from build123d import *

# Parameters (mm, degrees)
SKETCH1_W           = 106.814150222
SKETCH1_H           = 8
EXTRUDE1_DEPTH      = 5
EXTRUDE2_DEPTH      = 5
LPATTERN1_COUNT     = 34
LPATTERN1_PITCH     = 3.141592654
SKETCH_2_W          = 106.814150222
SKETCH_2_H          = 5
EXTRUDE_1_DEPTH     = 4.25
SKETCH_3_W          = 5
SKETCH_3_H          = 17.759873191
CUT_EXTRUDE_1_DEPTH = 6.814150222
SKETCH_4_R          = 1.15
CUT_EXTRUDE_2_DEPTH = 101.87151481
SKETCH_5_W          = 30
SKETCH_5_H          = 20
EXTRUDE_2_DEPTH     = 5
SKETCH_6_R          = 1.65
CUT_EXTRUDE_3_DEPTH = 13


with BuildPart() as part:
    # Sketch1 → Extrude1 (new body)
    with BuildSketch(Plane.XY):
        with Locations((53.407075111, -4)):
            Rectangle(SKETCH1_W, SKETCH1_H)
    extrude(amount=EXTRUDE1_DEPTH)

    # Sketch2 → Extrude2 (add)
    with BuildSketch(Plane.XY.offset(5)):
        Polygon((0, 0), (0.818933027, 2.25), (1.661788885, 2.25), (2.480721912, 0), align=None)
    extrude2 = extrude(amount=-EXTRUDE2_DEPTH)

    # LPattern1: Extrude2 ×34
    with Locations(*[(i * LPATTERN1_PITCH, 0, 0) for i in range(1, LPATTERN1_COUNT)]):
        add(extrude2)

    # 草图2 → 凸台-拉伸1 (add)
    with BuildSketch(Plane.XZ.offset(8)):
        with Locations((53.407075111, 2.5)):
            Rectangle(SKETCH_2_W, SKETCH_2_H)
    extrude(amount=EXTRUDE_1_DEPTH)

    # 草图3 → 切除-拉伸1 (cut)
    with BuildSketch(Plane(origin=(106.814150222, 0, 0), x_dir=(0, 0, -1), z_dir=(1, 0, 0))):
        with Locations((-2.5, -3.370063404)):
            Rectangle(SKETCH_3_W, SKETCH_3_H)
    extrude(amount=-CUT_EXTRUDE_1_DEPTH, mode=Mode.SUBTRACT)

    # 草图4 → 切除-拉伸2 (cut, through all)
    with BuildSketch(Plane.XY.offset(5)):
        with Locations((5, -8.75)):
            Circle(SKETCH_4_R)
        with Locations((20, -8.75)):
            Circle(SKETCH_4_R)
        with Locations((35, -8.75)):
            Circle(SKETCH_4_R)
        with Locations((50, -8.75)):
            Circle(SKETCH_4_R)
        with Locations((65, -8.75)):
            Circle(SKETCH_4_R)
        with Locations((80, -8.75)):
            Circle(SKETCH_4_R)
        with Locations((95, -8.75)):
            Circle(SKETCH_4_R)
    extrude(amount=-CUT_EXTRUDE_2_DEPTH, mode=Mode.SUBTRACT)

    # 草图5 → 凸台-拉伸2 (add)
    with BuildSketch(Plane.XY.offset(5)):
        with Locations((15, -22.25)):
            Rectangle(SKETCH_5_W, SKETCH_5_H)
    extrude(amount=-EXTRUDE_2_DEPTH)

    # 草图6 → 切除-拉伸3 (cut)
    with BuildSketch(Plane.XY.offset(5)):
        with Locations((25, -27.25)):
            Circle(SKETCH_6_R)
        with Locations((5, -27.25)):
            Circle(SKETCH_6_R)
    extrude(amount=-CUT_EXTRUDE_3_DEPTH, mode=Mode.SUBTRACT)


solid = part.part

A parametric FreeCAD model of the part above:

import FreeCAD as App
import Part
import Sketcher
Q = App.Units.Quantity

doc = App.newDocument("Part")
body = doc.addObject("PartDesign::Body", "Body")

# Sketch on XY plane
sketch1 = doc.addObject("Sketcher::SketchObject", "Sketch")
body.addObject(sketch1)
sketch1.AttachmentSupport = (doc.XY_Plane, [""])
sketch1.MapMode = "FlatFace"
sketch1.addGeometry(Part.LineSegment(App.Vector(0, 0, 0), App.Vector(0, -8, 0)), False)
sketch1.addGeometry(Part.LineSegment(App.Vector(0, -8, 0), App.Vector(106.81415, -8, 0)), False)
sketch1.addGeometry(Part.LineSegment(App.Vector(106.81415, -8, 0), App.Vector(106.81415, 0, 0)), False)
sketch1.addGeometry(Part.LineSegment(App.Vector(106.81415, 0, 0), App.Vector(0, 0, 0)), False)
sketch1.addConstraint(Sketcher.Constraint("Coincident", 0, 2, 1, 1))
sketch1.addConstraint(Sketcher.Constraint("Coincident", 1, 2, 2, 1))
sketch1.addConstraint(Sketcher.Constraint("Coincident", 2, 2, 3, 1))
sketch1.addConstraint(Sketcher.Constraint("Coincident", 3, 2, 0, 1))
sketch1.addConstraint(Sketcher.Constraint("Vertical", 0))
sketch1.addConstraint(Sketcher.Constraint("Horizontal", 1))
sketch1.addConstraint(Sketcher.Constraint("Vertical", 2))
sketch1.addConstraint(Sketcher.Constraint("Horizontal", 3))
sketch1.addConstraint(Sketcher.Constraint("Coincident", 3, 2, -1, 1))
sketch1.addConstraint(Sketcher.Constraint("DistanceY", 0, 2, 0, 1, 8.0))
sketch1.addConstraint(Sketcher.Constraint("DistanceX", 1, 1, 1, 2, 106.81415))
pad1 = doc.addObject("PartDesign::Pad", "Pad")
body.addObject(pad1)
pad1.Profile = sketch1
pad1.Length = 5

# Sketch on XY plane
sketch2 = doc.addObject("Sketcher::SketchObject", "Sketch001")
body.addObject(sketch2)
sketch2.AttachmentSupport = (doc.XY_Plane, [""])
sketch2.MapMode = "FlatFace"
sketch2.AttachmentOffset = App.Placement(App.Vector(0, 0, 5), App.Rotation())
sketch2.addGeometry(Part.LineSegment(App.Vector(0.818933, 2.25, 0), App.Vector(0, 0, 0)), False)
sketch2.addGeometry(Part.LineSegment(App.Vector(0, 0, 0), App.Vector(2.480722, 0, 0)), False)
sketch2.addGeometry(Part.LineSegment(App.Vector(2.480722, 0, 0), App.Vector(1.661789, 2.25, 0)), False)
sketch2.addGeometry(Part.LineSegment(App.Vector(1.661789, 2.25, 0), App.Vector(0.818933, 2.25, 0)), False)
sketch2.addConstraint(Sketcher.Constraint("Coincident", 0, 2, 1, 1))
sketch2.addConstraint(Sketcher.Constraint("Coincident", 1, 2, 2, 1))
sketch2.addConstraint(Sketcher.Constraint("Coincident", 2, 2, 3, 1))
sketch2.addConstraint(Sketcher.Constraint("Coincident", 3, 2, 0, 1))
sketch2.addConstraint(Sketcher.Constraint("Horizontal", 1))
sketch2.addConstraint(Sketcher.Constraint("Horizontal", 3))
sketch2.addConstraint(Sketcher.Constraint("Coincident", 0, 2, -1, 1))
sketch2.addConstraint(Sketcher.Constraint("Equal", 0, 2))
sketch2.addConstraint(Sketcher.Constraint("Angle", 0, Q("-110 deg")))
sketch2.addConstraint(Sketcher.Constraint("DistanceY", -1, 1, 2, 2, 2.25))
sketch2.addConstraint(Sketcher.Constraint("DistanceX", 1, 1, 1, 2, 2.480722))
pad2 = doc.addObject("PartDesign::Pad", "Pad001")
body.addObject(pad2)
pad2.Profile = sketch2
pad2.Length = 5
pad2.Reversed = True
doc.recompute()

linearpattern = doc.addObject("PartDesign::LinearPattern", "LinearPattern")
body.addObject(linearpattern)
linearpattern.Originals = [pad2]
linearpattern.Direction = (doc.X_Axis, [""])
linearpattern.Mode = "offset"
linearpattern.Offset = 3.141593
linearpattern.Occurrences = 34
body.Tip = linearpattern

# Sketch on XZ plane
sketch3 = doc.addObject("Sketcher::SketchObject", "Sketch002")
body.addObject(sketch3)
sketch3.AttachmentSupport = (doc.XZ_Plane, [""])
sketch3.MapMode = "FlatFace"
sketch3.AttachmentOffset = App.Placement(App.Vector(0, 0, 8), App.Rotation())
sketch3.addGeometry(Part.LineSegment(App.Vector(0, 5, 0), App.Vector(0, 0, 0)), False)
sketch3.addGeometry(Part.LineSegment(App.Vector(0, 0, 0), App.Vector(106.81415, 0, 0)), False)
sketch3.addGeometry(Part.LineSegment(App.Vector(106.81415, 0, 0), App.Vector(106.81415, 5, 0)), False)
sketch3.addGeometry(Part.LineSegment(App.Vector(106.81415, 5, 0), App.Vector(0, 5, 0)), False)
sketch3.addConstraint(Sketcher.Constraint("Coincident", 0, 2, 1, 1))
sketch3.addConstraint(Sketcher.Constraint("Coincident", 1, 2, 2, 1))
sketch3.addConstraint(Sketcher.Constraint("Coincident", 2, 2, 3, 1))
sketch3.addConstraint(Sketcher.Constraint("Coincident", 3, 2, 0, 1))
sketch3.addConstraint(Sketcher.Constraint("Vertical", 0))
sketch3.addConstraint(Sketcher.Constraint("Horizontal", 1))
sketch3.addConstraint(Sketcher.Constraint("Vertical", 2))
sketch3.addConstraint(Sketcher.Constraint("Horizontal", 3))
sketch3.addConstraint(Sketcher.Constraint("Coincident", 0, 2, -1, 1))
sketch3.addConstraint(Sketcher.Constraint("DistanceY", 0, 2, 0, 1, 5.0))
sketch3.addConstraint(Sketcher.Constraint("DistanceX", 1, 1, 1, 2, 106.81415))
pad3 = doc.addObject("PartDesign::Pad", "Pad002")
body.addObject(pad3)
pad3.Profile = sketch3
pad3.Length = 4.25

# Sketch on YZ plane
sketch4 = doc.addObject("Sketcher::SketchObject", "Sketch003")
body.addObject(sketch4)
sketch4.AttachmentSupport = (doc.YZ_Plane, [""])
sketch4.MapMode = "FlatFace"
sketch4.AttachmentOffset = App.Placement(App.Vector(0, 0, 106.81415), App.Rotation())
sketch4.addGeometry(Part.LineSegment(App.Vector(5.509873, 5, 0), App.Vector(-12.25, 5, 0)), False)
sketch4.addGeometry(Part.LineSegment(App.Vector(-12.25, 5, 0), App.Vector(-12.25, 0, 0)), False)
sketch4.addGeometry(Part.LineSegment(App.Vector(-12.25, 0, 0), App.Vector(5.509873, 0, 0)), False)
sketch4.addGeometry(Part.LineSegment(App.Vector(5.509873, 0, 0), App.Vector(5.509873, 5, 0)), False)
sketch4.addConstraint(Sketcher.Constraint("Coincident", 0, 2, 1, 1))
sketch4.addConstraint(Sketcher.Constraint("Coincident", 1, 2, 2, 1))
sketch4.addConstraint(Sketcher.Constraint("Coincident", 2, 2, 3, 1))
sketch4.addConstraint(Sketcher.Constraint("Coincident", 3, 2, 0, 1))
sketch4.addConstraint(Sketcher.Constraint("Horizontal", 0))
sketch4.addConstraint(Sketcher.Constraint("Vertical", 1))
sketch4.addConstraint(Sketcher.Constraint("Horizontal", 2))
sketch4.addConstraint(Sketcher.Constraint("Vertical", 3))
sketch4.addConstraint(Sketcher.Constraint("PointOnObject", 1, 2, -1))
sketch4.addConstraint(Sketcher.Constraint("DistanceY", 1, 2, 1, 1, 5.0))
sketch4.addConstraint(Sketcher.Constraint("DistanceX", 0, 2, -1, 1, 12.25))
sketch4.addConstraint(Sketcher.Constraint("DistanceX", 0, 2, 0, 1, 17.759873))
pocket1 = doc.addObject("PartDesign::Pocket", "Pocket")
body.addObject(pocket1)
pocket1.Profile = sketch4
pocket1.Length = 6.81415

# Sketch on XY plane
sketch5 = doc.addObject("Sketcher::SketchObject", "Sketch004")
body.addObject(sketch5)
sketch5.AttachmentSupport = (doc.XY_Plane, [""])
sketch5.MapMode = "FlatFace"
sketch5.AttachmentOffset = App.Placement(App.Vector(0, 0, 5), App.Rotation())
sketch5.addGeometry(Part.Circle(App.Vector(5, -8.75, 0), App.Vector(0, 0, 1), 1.15), False)
sketch5.addGeometry(Part.Circle(App.Vector(20, -8.75, 0), App.Vector(0, 0, 1), 1.15), False)
sketch5.addGeometry(Part.Circle(App.Vector(35, -8.75, 0), App.Vector(0, 0, 1), 1.15), False)
sketch5.addGeometry(Part.Circle(App.Vector(50, -8.75, 0), App.Vector(0, 0, 1), 1.15), False)
sketch5.addGeometry(Part.Circle(App.Vector(65, -8.75, 0), App.Vector(0, 0, 1), 1.15), False)
sketch5.addGeometry(Part.Circle(App.Vector(80, -8.75, 0), App.Vector(0, 0, 1), 1.15), False)
sketch5.addGeometry(Part.Circle(App.Vector(95, -8.75, 0), App.Vector(0, 0, 1), 1.15), False)
sketch5.addConstraint(Sketcher.Constraint("Equal", 0, 1))
sketch5.addConstraint(Sketcher.Constraint("Equal", 1, 2))
sketch5.addConstraint(Sketcher.Constraint("Equal", 2, 3))
sketch5.addConstraint(Sketcher.Constraint("Equal", 3, 4))
sketch5.addConstraint(Sketcher.Constraint("Equal", 4, 5))
sketch5.addConstraint(Sketcher.Constraint("Equal", 5, 6))
sketch5.addConstraint(Sketcher.Constraint("Horizontal", 0, 3, 1, 3))
sketch5.addConstraint(Sketcher.Constraint("Horizontal", 1, 3, 2, 3))
sketch5.addConstraint(Sketcher.Constraint("Horizontal", 2, 3, 3, 3))
sketch5.addConstraint(Sketcher.Constraint("Horizontal", 3, 3, 4, 3))
sketch5.addConstraint(Sketcher.Constraint("Horizontal", 4, 3, 5, 3))
sketch5.addConstraint(Sketcher.Constraint("Horizontal", 5, 3, 6, 3))
sketch5.addConstraint(Sketcher.Constraint("Diameter", 0, 2.3))
sketch5.addConstraint(Sketcher.Constraint("DistanceX", -1, 1, 0, 3, 5.0))
sketch5.addConstraint(Sketcher.Constraint("DistanceX", -1, 1, 1, 3, 20.0))
sketch5.addConstraint(Sketcher.Constraint("DistanceX", -1, 1, 2, 3, 35.0))
sketch5.addConstraint(Sketcher.Constraint("DistanceX", -1, 1, 3, 3, 50.0))
sketch5.addConstraint(Sketcher.Constraint("DistanceX", -1, 1, 4, 3, 65.0))
sketch5.addConstraint(Sketcher.Constraint("DistanceX", -1, 1, 5, 3, 80.0))
sketch5.addConstraint(Sketcher.Constraint("DistanceX", -1, 1, 6, 3, 95.0))
sketch5.addConstraint(Sketcher.Constraint("DistanceY", 0, 3, -1, 1, 8.75))
pocket2 = doc.addObject("PartDesign::Pocket", "Pocket001")
body.addObject(pocket2)
pocket2.Profile = sketch5
pocket2.Type = "ThroughAll"

# Sketch on XY plane
sketch6 = doc.addObject("Sketcher::SketchObject", "Sketch005")
body.addObject(sketch6)
sketch6.AttachmentSupport = (doc.XY_Plane, [""])
sketch6.MapMode = "FlatFace"
sketch6.AttachmentOffset = App.Placement(App.Vector(0, 0, 5), App.Rotation())
sketch6.addGeometry(Part.LineSegment(App.Vector(0, -12.25, 0), App.Vector(0, -32.25, 0)), False)
sketch6.addGeometry(Part.LineSegment(App.Vector(0, -32.25, 0), App.Vector(30, -32.25, 0)), False)
sketch6.addGeometry(Part.LineSegment(App.Vector(30, -32.25, 0), App.Vector(30, -12.25, 0)), False)
sketch6.addGeometry(Part.LineSegment(App.Vector(30, -12.25, 0), App.Vector(0, -12.25, 0)), False)
sketch6.addConstraint(Sketcher.Constraint("Coincident", 0, 2, 1, 1))
sketch6.addConstraint(Sketcher.Constraint("Coincident", 1, 2, 2, 1))
sketch6.addConstraint(Sketcher.Constraint("Coincident", 2, 2, 3, 1))
sketch6.addConstraint(Sketcher.Constraint("Coincident", 3, 2, 0, 1))
sketch6.addConstraint(Sketcher.Constraint("Vertical", 0))
sketch6.addConstraint(Sketcher.Constraint("Horizontal", 1))
sketch6.addConstraint(Sketcher.Constraint("Vertical", 2))
sketch6.addConstraint(Sketcher.Constraint("Horizontal", 3))
sketch6.addConstraint(Sketcher.Constraint("PointOnObject", 0, 2, -2))
sketch6.addConstraint(Sketcher.Constraint("DistanceX", 1, 1, 1, 2, 30.0))
sketch6.addConstraint(Sketcher.Constraint("DistanceY", 0, 2, 0, 1, 20.0))
sketch6.addConstraint(Sketcher.Constraint("DistanceY", 0, 2, -1, 1, 32.25))
pad4 = doc.addObject("PartDesign::Pad", "Pad003")
body.addObject(pad4)
pad4.Profile = sketch6
pad4.Length = 5
pad4.Reversed = True

# Sketch on XY plane
sketch7 = doc.addObject("Sketcher::SketchObject", "Sketch006")
body.addObject(sketch7)
sketch7.AttachmentSupport = (doc.XY_Plane, [""])
sketch7.MapMode = "FlatFace"
sketch7.AttachmentOffset = App.Placement(App.Vector(0, 0, 5), App.Rotation())
sketch7.addGeometry(Part.Circle(App.Vector(25, -27.25, 0), App.Vector(0, 0, 1), 1.65), False)
sketch7.addGeometry(Part.Circle(App.Vector(5, -27.25, 0), App.Vector(0, 0, 1), 1.65), False)
sketch7.addConstraint(Sketcher.Constraint("Equal", 0, 1))
sketch7.addConstraint(Sketcher.Constraint("Horizontal", 0, 3, 1, 3))
sketch7.addConstraint(Sketcher.Constraint("Diameter", 0, 3.3))
sketch7.addConstraint(Sketcher.Constraint("DistanceX", -1, 1, 0, 3, 25.0))
sketch7.addConstraint(Sketcher.Constraint("DistanceX", -1, 1, 1, 3, 5.0))
sketch7.addConstraint(Sketcher.Constraint("DistanceY", 0, 3, -1, 1, 27.25))
pocket3 = doc.addObject("PartDesign::Pocket", "Pocket002")
body.addObject(pocket3)
pocket3.Profile = sketch7
pocket3.Length = 13

doc.recompute()
